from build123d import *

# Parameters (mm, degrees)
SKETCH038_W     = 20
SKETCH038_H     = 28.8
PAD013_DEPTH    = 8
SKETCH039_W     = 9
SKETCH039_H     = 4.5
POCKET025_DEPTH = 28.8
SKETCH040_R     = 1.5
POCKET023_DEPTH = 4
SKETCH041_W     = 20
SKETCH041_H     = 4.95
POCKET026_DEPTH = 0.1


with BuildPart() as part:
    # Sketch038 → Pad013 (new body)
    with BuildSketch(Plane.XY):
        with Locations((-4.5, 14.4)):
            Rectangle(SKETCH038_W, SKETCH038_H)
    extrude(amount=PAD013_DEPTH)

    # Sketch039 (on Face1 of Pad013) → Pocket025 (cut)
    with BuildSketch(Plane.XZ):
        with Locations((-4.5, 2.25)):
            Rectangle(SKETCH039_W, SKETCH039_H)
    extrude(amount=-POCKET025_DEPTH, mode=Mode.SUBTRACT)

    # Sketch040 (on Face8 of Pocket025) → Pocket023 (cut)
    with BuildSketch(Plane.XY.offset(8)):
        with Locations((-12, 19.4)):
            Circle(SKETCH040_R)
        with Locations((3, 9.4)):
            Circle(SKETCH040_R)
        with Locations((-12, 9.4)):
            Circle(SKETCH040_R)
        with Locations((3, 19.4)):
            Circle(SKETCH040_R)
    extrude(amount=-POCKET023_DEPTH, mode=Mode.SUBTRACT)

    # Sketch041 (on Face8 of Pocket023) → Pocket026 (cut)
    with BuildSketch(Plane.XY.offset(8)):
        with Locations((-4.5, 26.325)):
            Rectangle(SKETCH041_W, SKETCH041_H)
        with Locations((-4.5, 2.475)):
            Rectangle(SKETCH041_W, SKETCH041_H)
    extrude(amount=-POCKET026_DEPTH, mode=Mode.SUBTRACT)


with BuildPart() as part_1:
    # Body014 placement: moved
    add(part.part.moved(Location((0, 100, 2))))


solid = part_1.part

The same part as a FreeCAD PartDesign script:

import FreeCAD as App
import Part
import Sketcher

V = App.Vector


def add_polygon(sketch, points):
    """Adds a closed chain of lines whose ends are joined by coincident constraints."""
    first, n = sketch.GeometryCount, len(points)
    for a, b in zip(points, points[1:] + points[:1]):
        sketch.addGeometry(Part.LineSegment(App.Vector(*a, 0), App.Vector(*b, 0)), False)
    for i in range(n):
        sketch.addConstraint(Sketcher.Constraint("Coincident", first + i, 2, first + (i + 1) % n, 1))

doc = App.newDocument("Part")
body = doc.addObject("PartDesign::Body", "Body")

sketch1 = doc.addObject("Sketcher::SketchObject", "Sketch")
body.addObject(sketch1)
sketch1.AttachmentSupport = (doc.XY_Plane, [""])
sketch1.MapMode = "FlatFace"
add_polygon(sketch1, [(-14, 29), (-14, 0), (6, 0), (6, 29)])
sketch1.addConstraint([
    Sketcher.Constraint("Vertical", 0),
    Sketcher.Constraint("Horizontal", 1),
    Sketcher.Constraint("Vertical", 2),
    Sketcher.Constraint("Horizontal", 3),
    Sketcher.Constraint("PointOnObject", 0, 2, -1),
    Sketcher.Constraint("DistanceX", 1, 1, 1, 2, 20.0),
    Sketcher.Constraint("DistanceY", 0, 2, 0, 1, 28.8),
    Sketcher.Constraint("DistanceX", 0, 2, -1, 1, 14.5),
])
pad1 = doc.addObject("PartDesign::Pad", "Pad")
body.addObject(pad1)
pad1.Profile = sketch1
pad1.Length = 8

sketch2 = doc.addObject("Sketcher::SketchObject", "Sketch001")
body.addObject(sketch2)
sketch2.AttachmentSupport = (doc.XZ_Plane, [""])
sketch2.MapMode = "FlatFace"
add_polygon(sketch2, [(-9, 4.5), (-9, 0), (0, 0), (0, 4.5)])
sketch2.addConstraint([
    Sketcher.Constraint("Vertical", 0),
    Sketcher.Constraint("Horizontal", 1),
    Sketcher.Constraint("Vertical", 2),
    Sketcher.Constraint("Horizontal", 3),
    Sketcher.Constraint("Coincident", 1, 2, -1, 1),
    Sketcher.Constraint("DistanceX", 1, 1, 1, 2, 9.0),
    Sketcher.Constraint("DistanceY", 0, 2, 0, 1, 4.5),
])
pocket1 = doc.addObject("PartDesign::Pocket", "Pocket")
body.addObject(pocket1)
pocket1.Profile = sketch2
pocket1.Length = 28.8

sketch3 = doc.addObject("Sketcher::SketchObject", "Sketch002")
body.addObject(sketch3)
sketch3.AttachmentSupport = (doc.XY_Plane, [""])
sketch3.MapMode = "FlatFace"
sketch3.AttachmentOffset = App.Placement(V(0, 0, 8), App.Rotation())
sketch3.addGeometry([
    Part.Circle(V(-12, 19.4, 0), V(0, 0, 1), 1.5),
    Part.Circle(V(3, 9.4, 0), V(0, 0, 1), 1.5),
    Part.Circle(V(-12, 9.4, 0), V(0, 0, 1), 1.5),
    Part.Circle(V(3, 19.4, 0), V(0, 0, 1), 1.5),
], False)
sketch3.addConstraint([
    Sketcher.Constraint("Equal", 0, 1),
    Sketcher.Constraint("Equal", 1, 2),
    Sketcher.Constraint("Equal", 2, 3),
    Sketcher.Constraint("Horizontal", 1, 3, 2, 3),
    Sketcher.Constraint("Horizontal", 0, 3, 3, 3),
    Sketcher.Constraint("Vertical", 0, 3, 2, 3),
    Sketcher.Constraint("Vertical", 1, 3, 3, 3),
    Sketcher.Constraint("Diameter", 0, 3.0),
    Sketcher.Constraint("DistanceX", 0, 3, -1, 1, 12.0),
    Sketcher.Constraint("DistanceX", -1, 1, 1, 3, 3.0),
    Sketcher.Constraint("DistanceY", 1, 3, 0, 3, 10.0),
    Sketcher.Constraint("DistanceY", -1, 1, 0, 3, 19.4),
])
pocket2 = doc.addObject("PartDesign::Pocket", "Pocket001")
body.addObject(pocket2)
pocket2.Profile = sketch3
pocket2.Length = 4

sketch4 = doc.addObject("Sketcher::SketchObject", "Sketch003")
body.addObject(sketch4)
sketch4.AttachmentSupport = (doc.XY_Plane, [""])
sketch4.MapMode = "FlatFace"
sketch4.AttachmentOffset = App.Placement(V(0, 0, 8), App.Rotation())
add_polygon(sketch4, [(-14.5, 28.8), (-14.5, 23.9), (5.5, 23.9), (5.5, 28.8)])
add_polygon(sketch4, [(-14.5, 5), (-14.5, 0), (5.5, 0), (5.5, 5)])
sketch4.addConstraint([
    Sketcher.Constraint("Vertical", 0),
    Sketcher.Constraint("Horizontal", 1),
    Sketcher.Constraint("Vertical", 2),
    Sketcher.Constraint("Horizontal", 3),
    Sketcher.Constraint("Vertical", 4),
    Sketcher.Constraint("Horizontal", 5),
    Sketcher.Constraint("Vertical", 6),
    Sketcher.Constraint("Horizontal", 7),
    Sketcher.Constraint("PointOnObject", 4, 2, -1),
    Sketcher.Constraint("Vertical", 3, 2, 4, 2),
    Sketcher.Constraint("Vertical", 2, 2, 5, 2),
    Sketcher.Constraint("Equal", 2, 4),
    Sketcher.Constraint("DistanceX", 1, 1, 1, 2, 20.0),
    Sketcher.Constraint("DistanceY", 0, 2, 0, 1, 4.95),
    Sketcher.Constraint("DistanceX", 0, 2, -1, 1, 14.5),
    Sketcher.Constraint("DistanceY", -1, 1, 2, 2, 28.8),
])
pocket3 = doc.addObject("PartDesign::Pocket", "Pocket002")
body.addObject(pocket3)
pocket3.Profile = sketch4
pocket3.Length = 0.1
body2 = doc.addObject("PartDesign::Body", "Body001")
doc.recompute()

body.Placement = App.Placement(V(0, 100, 2), App.Rotation(V(0, 0, 1), 0))
boolean = doc.addObject("PartDesign::Boolean", "Boolean")
body2.addObject(boolean)
boolean.Type = "Fuse"
boolean.addObjects([body])

doc.recompute()
